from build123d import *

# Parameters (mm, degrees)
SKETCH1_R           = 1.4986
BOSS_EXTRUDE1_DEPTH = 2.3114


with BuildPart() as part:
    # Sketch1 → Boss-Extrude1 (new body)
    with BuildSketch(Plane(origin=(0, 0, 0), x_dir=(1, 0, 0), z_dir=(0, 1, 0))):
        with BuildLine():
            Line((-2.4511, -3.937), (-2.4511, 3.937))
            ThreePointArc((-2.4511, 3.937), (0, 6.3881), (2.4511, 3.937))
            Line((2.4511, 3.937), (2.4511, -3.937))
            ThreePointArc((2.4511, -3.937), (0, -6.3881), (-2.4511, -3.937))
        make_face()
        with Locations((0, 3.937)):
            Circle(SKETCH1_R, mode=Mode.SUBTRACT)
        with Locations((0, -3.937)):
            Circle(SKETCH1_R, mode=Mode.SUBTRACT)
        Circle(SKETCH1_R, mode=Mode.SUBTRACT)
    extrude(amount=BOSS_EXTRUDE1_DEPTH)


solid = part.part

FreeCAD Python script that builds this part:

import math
import FreeCAD as App
import Part
import Sketcher
Q = App.Units.Quantity

doc = App.newDocument("Part")
params = doc.addObject("Spreadsheet::Sheet", "Params")
for row, (alias, value) in enumerate([
    ("sketch1_diameter", "0.118 in"),
    ("sketch1_height", "0.31 in"),
    ("pad1_length", "0.091 in"),
], start=1):
    params.set(f"A{row}", alias)
    params.set(f"B{row}", "=" + value)
    params.setAlias(f"B{row}", alias)

body = doc.addObject("PartDesign::Body", "Body")

# Sketch on XZ plane
sketch1 = body.newObject("Sketcher::SketchObject", "Sketch")
sketch1.AttachmentSupport = (doc.getObject("XZ_Plane"), [""])
sketch1.MapMode = "FlatFace"
sketch1.addGeometry([
    Part.LineSegment(App.Vector(-2.5, -3.9, 0), App.Vector(-2.5, 3.9, 0)),  # 0
    Part.ArcOfCircle(Part.Circle(App.Vector(0, 3.9, 0), App.Vector(0, 0, 1), 2.5), math.radians(0), math.radians(180)),  # 1
    Part.LineSegment(App.Vector(2.5, 3.9, 0), App.Vector(2.5, -3.9, 0)),  # 2
    Part.ArcOfCircle(Part.Circle(App.Vector(0, -3.9, 0), App.Vector(0, 0, 1), 2.5), math.radians(180), math.radians(360)),  # 3
    Part.Circle(App.Vector(0, 3.9, 0), App.Vector(0, 0, 1), 1.5),  # 4
    Part.Circle(App.Vector(0, 0, 0), App.Vector(0, 0, 1), 1.5),  # 5
    Part.Circle(App.Vector(0, -3.9, 0), App.Vector(0, 0, 1), 1.5),  # 6
], False)
sketch1.addConstraint([
    Sketcher.Constraint("Tangent", 0, 2, 1, 2),
    Sketcher.Constraint("Tangent", 1, 1, 2, 1),
    Sketcher.Constraint("Tangent", 2, 2, 3, 2),
    Sketcher.Constraint("Tangent", 3, 1, 0, 1),
    Sketcher.Constraint("Vertical", 0),
    Sketcher.Constraint("Vertical", 2),
    Sketcher.Constraint("Coincident", 5, 3, -1, 1),
    Sketcher.Constraint("Coincident", 4, 3, 1, 3),
    Sketcher.Constraint("Coincident", 6, 3, 3, 3),
    Sketcher.Constraint("Equal", 4, 5),
    Sketcher.Constraint("Equal", 5, 6),
    Sketcher.Constraint("Symmetric", 1, 3, 3, 3, -1, 1),
    Sketcher.Constraint("Diameter", 4, Q("0.118 in")),
    Sketcher.Constraint("DistanceY", 0, 1, 0, 2, Q("0.31 in")),
    Sketcher.Constraint("Radius", 1, Q("0.0965 in")),
])
sketch1.setExpression("Constraints[12]", "Params.sketch1_diameter")
sketch1.setExpression("Constraints[13]", "Params.sketch1_height")
pad1 = body.newObject("PartDesign::Pad", "Pad")
pad1.Profile = sketch1
pad1.setExpression("Length", "Params.pad1_length")
pad1.Reversed = True

doc.recompute()
